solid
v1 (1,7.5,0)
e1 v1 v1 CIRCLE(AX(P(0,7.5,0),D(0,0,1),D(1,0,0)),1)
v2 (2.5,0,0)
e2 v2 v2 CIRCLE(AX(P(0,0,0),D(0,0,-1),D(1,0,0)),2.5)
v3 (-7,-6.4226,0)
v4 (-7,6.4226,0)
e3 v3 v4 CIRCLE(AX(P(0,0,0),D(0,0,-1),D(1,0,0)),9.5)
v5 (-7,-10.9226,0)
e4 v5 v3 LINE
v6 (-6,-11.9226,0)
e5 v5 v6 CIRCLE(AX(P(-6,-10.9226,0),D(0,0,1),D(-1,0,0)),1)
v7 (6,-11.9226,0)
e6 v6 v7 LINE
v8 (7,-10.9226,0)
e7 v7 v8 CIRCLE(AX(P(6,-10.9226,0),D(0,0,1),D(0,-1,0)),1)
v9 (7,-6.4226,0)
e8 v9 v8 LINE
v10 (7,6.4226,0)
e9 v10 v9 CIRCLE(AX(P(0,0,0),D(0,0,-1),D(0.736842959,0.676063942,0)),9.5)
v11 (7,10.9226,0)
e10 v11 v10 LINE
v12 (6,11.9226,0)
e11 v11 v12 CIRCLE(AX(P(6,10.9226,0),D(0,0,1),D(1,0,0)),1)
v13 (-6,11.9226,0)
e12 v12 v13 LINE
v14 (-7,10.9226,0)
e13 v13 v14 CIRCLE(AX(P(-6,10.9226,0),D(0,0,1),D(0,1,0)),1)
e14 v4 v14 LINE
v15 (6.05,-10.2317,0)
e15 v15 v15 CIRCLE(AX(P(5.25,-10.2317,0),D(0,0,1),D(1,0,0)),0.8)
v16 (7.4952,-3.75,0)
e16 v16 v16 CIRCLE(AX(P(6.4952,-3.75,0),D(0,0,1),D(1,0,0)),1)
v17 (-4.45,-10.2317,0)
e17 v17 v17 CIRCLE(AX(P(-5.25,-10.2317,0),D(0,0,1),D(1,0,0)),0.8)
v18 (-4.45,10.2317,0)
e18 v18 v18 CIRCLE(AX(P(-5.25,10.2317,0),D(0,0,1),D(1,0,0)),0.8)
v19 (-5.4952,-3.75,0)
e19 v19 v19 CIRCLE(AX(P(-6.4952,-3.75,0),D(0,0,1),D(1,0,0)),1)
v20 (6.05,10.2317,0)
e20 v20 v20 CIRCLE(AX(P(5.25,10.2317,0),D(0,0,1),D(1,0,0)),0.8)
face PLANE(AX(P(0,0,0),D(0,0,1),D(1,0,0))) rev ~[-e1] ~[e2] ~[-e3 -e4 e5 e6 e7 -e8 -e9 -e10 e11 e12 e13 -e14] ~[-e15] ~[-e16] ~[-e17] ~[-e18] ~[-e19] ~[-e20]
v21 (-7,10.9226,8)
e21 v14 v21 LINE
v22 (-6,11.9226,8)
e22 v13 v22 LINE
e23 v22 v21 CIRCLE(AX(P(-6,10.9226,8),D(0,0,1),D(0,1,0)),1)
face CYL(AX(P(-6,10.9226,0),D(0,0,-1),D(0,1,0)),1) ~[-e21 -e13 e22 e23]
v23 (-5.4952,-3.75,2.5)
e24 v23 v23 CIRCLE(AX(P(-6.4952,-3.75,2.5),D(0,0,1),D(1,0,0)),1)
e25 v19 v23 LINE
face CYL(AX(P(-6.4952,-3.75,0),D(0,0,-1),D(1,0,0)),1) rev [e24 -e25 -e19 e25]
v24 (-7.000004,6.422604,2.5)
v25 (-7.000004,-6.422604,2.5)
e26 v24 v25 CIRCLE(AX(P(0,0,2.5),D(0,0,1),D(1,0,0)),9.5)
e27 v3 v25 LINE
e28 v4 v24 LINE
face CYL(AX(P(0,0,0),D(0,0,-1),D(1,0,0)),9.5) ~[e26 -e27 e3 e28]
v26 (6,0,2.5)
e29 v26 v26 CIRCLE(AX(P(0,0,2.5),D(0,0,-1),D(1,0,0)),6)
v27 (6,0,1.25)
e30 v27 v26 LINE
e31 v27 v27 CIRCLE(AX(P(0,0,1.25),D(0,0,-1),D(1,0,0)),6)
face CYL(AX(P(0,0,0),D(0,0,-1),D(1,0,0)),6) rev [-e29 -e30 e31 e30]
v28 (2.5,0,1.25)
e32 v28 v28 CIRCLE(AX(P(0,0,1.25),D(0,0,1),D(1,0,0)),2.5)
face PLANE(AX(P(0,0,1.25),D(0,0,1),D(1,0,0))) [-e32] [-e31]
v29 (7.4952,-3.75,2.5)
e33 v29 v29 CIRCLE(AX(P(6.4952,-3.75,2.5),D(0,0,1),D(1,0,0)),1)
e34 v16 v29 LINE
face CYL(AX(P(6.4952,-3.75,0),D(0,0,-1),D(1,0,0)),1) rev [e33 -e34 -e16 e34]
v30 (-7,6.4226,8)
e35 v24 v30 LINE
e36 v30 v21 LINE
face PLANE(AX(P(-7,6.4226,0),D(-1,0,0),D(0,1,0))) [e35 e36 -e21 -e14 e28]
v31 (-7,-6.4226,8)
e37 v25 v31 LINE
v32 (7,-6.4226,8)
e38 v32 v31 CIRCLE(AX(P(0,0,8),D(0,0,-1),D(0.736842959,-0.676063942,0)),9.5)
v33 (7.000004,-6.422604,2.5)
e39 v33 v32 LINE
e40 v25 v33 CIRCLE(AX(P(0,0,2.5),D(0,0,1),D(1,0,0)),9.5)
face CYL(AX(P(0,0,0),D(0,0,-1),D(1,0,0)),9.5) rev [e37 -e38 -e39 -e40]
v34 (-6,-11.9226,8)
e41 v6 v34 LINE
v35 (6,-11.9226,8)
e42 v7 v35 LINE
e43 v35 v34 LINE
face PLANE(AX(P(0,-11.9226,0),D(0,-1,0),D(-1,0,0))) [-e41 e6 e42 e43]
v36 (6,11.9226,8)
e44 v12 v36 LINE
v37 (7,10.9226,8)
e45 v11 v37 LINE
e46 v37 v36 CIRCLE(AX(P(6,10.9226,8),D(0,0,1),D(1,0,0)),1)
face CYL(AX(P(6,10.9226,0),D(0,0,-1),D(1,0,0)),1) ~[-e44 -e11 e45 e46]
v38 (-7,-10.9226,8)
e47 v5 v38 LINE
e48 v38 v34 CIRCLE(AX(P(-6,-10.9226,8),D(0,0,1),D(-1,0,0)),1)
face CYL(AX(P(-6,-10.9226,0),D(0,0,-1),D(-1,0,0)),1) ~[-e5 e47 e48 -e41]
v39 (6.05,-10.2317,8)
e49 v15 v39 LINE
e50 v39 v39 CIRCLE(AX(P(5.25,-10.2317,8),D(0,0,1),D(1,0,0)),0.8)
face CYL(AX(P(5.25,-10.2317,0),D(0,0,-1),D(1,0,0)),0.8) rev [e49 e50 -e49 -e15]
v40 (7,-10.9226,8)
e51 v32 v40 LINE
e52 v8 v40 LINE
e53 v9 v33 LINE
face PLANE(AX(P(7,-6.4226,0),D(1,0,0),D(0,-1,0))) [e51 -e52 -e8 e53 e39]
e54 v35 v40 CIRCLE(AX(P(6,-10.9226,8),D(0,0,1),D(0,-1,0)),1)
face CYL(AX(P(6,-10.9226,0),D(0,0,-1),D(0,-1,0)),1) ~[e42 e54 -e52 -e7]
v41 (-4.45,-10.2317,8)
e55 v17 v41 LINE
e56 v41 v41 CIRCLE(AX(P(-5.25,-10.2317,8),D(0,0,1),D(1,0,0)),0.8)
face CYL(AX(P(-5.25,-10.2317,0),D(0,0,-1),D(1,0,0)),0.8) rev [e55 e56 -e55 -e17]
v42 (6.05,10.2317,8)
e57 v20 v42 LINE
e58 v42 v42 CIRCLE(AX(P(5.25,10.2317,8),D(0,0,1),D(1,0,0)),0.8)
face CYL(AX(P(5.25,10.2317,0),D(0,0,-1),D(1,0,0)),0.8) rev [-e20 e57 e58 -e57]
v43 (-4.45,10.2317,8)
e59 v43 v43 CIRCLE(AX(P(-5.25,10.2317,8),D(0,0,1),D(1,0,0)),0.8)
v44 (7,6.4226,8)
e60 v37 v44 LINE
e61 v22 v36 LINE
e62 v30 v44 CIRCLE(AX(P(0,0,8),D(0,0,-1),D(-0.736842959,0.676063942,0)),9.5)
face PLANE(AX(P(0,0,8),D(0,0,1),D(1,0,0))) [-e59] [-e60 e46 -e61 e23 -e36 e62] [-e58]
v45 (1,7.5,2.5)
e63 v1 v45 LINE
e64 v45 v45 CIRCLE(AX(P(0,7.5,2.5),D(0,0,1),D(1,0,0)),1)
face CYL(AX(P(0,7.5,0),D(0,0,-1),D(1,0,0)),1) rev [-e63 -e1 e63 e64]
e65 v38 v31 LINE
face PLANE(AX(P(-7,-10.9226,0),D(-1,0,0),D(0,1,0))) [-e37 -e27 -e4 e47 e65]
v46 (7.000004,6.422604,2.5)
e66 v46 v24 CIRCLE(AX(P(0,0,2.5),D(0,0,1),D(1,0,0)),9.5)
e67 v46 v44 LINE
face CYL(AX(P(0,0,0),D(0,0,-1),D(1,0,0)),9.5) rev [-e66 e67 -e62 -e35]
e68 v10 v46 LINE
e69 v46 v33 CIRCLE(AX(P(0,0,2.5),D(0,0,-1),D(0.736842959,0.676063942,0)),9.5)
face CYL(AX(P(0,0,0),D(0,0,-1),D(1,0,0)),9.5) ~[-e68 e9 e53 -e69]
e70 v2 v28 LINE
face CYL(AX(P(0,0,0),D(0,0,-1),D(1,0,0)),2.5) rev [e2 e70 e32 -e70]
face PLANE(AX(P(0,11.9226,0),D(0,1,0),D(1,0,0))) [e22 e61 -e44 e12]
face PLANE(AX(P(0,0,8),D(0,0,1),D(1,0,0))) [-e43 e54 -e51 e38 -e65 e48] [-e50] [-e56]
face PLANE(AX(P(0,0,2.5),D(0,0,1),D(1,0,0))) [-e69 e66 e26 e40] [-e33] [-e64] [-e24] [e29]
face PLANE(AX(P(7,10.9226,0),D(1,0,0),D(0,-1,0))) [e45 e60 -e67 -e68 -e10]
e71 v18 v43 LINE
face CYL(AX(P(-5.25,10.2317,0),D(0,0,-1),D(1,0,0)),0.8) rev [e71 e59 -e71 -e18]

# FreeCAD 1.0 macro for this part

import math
import FreeCAD as App
import Part
import Sketcher

V = App.Vector

doc = App.newDocument("Part")
params = doc.addObject("Spreadsheet::Sheet", "Params")
for row, (alias, value) in enumerate([
    ("sketch1_diameter", "19 mm"),
    ("sketch1_diameter2", "5 mm"),
    ("sketch1_diameter3", "2 mm"),
    ("pad1_length", "1.25 mm"),
    ("sketch2_diameter", "19 mm"),
    ("sketch2_diameter2", "2 mm"),
    ("sketch2_diameter3", "12 mm"),
    ("pad2_length", "2.5 mm"),
    ("sketch3_radius", "1 mm"),
    ("sketch3_diameter", "1.6 mm"),
    ("sketch3_radius2", "9.5 mm"),
    ("sketch3_width", "12 mm"),
    ("sketch3_height", "4.5 mm"),
    ("pad3_length", "8 mm"),
], start=1):
    params.set(f"A{row}", alias)
    params.set(f"B{row}", "=" + value)
    params.setAlias(f"B{row}", alias)

body = doc.addObject("PartDesign::Body", "Body")

sketch1 = doc.addObject("Sketcher::SketchObject", "Sketch")
body.addObject(sketch1)
sketch1.AttachmentSupport = (doc.XY_Plane, [""])
sketch1.MapMode = "FlatFace"
sketch1.addGeometry([
    Part.Circle(V(0, 0, 0), V(0, 0, 1), 9.5),
    Part.Circle(V(0, 0, 0), V(0, 0, 1), 2.5),
    Part.Circle(V(0, 7.5, 0), V(0, 0, 1), 1),
    Part.Circle(V(6.4952, -3.75, 0), V(0, 0, 1), 1),
    Part.Circle(V(-6.4952, -3.75, 0), V(0, 0, 1), 1),
], False)
sketch1.addConstraint([
    Sketcher.Constraint("Coincident", 0, 3, -1, 1),
    Sketcher.Constraint("Coincident", 1, 3, -1, 1),
    Sketcher.Constraint("Equal", 2, 3),
    Sketcher.Constraint("Equal", 3, 4),
    Sketcher.Constraint("Symmetric", 3, 3, 4, 3, -2),
    Sketcher.Constraint("PointOnObject", 2, 3, -2),
    Sketcher.Constraint("Diameter", 0, 19.0),
    Sketcher.Constraint("Diameter", 1, 5.0),
    Sketcher.Constraint("Diameter", 2, 2.0),
    Sketcher.Constraint("DistanceY", -1, 1, 2, 3, 7.5),
    Sketcher.Constraint("DistanceY", 3, 3, -1, 1, 3.75),
    Sketcher.Constraint("DistanceX", -1, 1, 3, 3, 6.4952),
])
sketch1.setExpression("Constraints[6]", "Params.sketch1_diameter")
sketch1.setExpression("Constraints[7]", "Params.sketch1_diameter2")
sketch1.setExpression("Constraints[8]", "Params.sketch1_diameter3")
pad1 = doc.addObject("PartDesign::Pad", "Pad")
body.addObject(pad1)
pad1.Profile = sketch1
pad1.setExpression("Length", "Params.pad1_length")

sketch2 = doc.addObject("Sketcher::SketchObject", "Sketch001")
body.addObject(sketch2)
sketch2.AttachmentSupport = (doc.XY_Plane, [""])
sketch2.MapMode = "FlatFace"
sketch2.addGeometry([
    Part.Circle(V(0, 0, 0), V(0, 0, 1), 9.5),
    Part.Circle(V(0, 7.5, 0), V(0, 0, 1), 1),
    Part.Circle(V(0, 0, 0), V(0, 0, 1), 6),
    Part.Circle(V(6.4952, -3.75, 0), V(0, 0, 1), 1),
    Part.Circle(V(-6.4952, -3.75, 0), V(0, 0, 1), 1),
], False)
sketch2.addConstraint([
    Sketcher.Constraint("Coincident", 0, 3, -1, 1),
    Sketcher.Constraint("Coincident", 2, 3, -1, 1),
    Sketcher.Constraint("Equal", 1, 3),
    Sketcher.Constraint("Equal", 3, 4),
    Sketcher.Constraint("Symmetric", 3, 3, 4, 3, -2),
    Sketcher.Constraint("PointOnObject", 1, 3, -2),
    Sketcher.Constraint("Diameter", 0, 19.0),
    Sketcher.Constraint("Diameter", 1, 2.0),
    Sketcher.Constraint("Diameter", 2, 12.0),
    Sketcher.Constraint("DistanceY", -1, 1, 1, 3, 7.5),
    Sketcher.Constraint("DistanceY", 3, 3, -1, 1, 3.75),
    Sketcher.Constraint("DistanceX", -1, 1, 3, 3, 6.4952),
])
sketch2.setExpression("Constraints[6]", "Params.sketch2_diameter")
sketch2.setExpression("Constraints[7]", "Params.sketch2_diameter2")
sketch2.setExpression("Constraints[8]", "Params.sketch2_diameter3")
pad2 = doc.addObject("PartDesign::Pad", "Pad001")
body.addObject(pad2)
pad2.Profile = sketch2
pad2.setExpression("Length", "Params.pad2_length")

sketch3 = doc.addObject("Sketcher::SketchObject", "Sketch002")
body.addObject(sketch3)
sketch3.AttachmentSupport = (doc.XY_Plane, [""])
sketch3.MapMode = "FlatFace"
sketch3.addGeometry([
    Part.LineSegment(V(-6, -11.9226, 0), V(6, -11.9226, 0)),
    Part.ArcOfCircle(Part.Circle(V(6, -10.9226, 0), V(0, 0, 1), 1), math.radians(-90), math.radians(0)),
    Part.LineSegment(V(7, -10.9226, 0), V(7, -6.4226, 0)),
    Part.ArcOfCircle(Part.Circle(V(0, 0, 0), V(0, 0, 1), 9.5), math.radians(-137.463174), math.radians(-42.536826)),
    Part.LineSegment(V(-7, -6.4226, 0), V(-7, -10.9226, 0)),
    Part.ArcOfCircle(Part.Circle(V(-6, -10.9226, 0), V(0, 0, 1), 1), math.radians(180), math.radians(270)),
    Part.Circle(V(-5.25, -10.2317, 0), V(0, 0, 1), 0.8),
    Part.Circle(V(5.25, -10.2317, 0), V(0, 0, 1), 0.8),
    Part.LineSegment(V(6, 11.9226, 0), V(-6, 11.9226, 0)),
    Part.ArcOfCircle(Part.Circle(V(-6, 10.9226, 0), V(0, 0, 1), 1), math.radians(90), math.radians(180)),
    Part.LineSegment(V(-7, 10.9226, 0), V(-7, 6.4226, 0)),
    Part.ArcOfCircle(Part.Circle(V(0, 0, 0), V(0, 0, 1), 9.5), math.radians(42.536826), math.radians(137.463174)),
    Part.LineSegment(V(7, 6.4226, 0), V(7, 10.9226, 0)),
    Part.ArcOfCircle(Part.Circle(V(6, 10.9226, 0), V(0, 0, 1), 1), math.radians(0), math.radians(90)),
    Part.Circle(V(5.25, 10.2317, 0), V(0, 0, 1), 0.8),
    Part.Circle(V(-5.25, 10.2317, 0), V(0, 0, 1), 0.8),
], False)
sketch3.addConstraint([
    Sketcher.Constraint("Tangent", 0, 2, 1, 1),
    Sketcher.Constraint("Tangent", 1, 2, 2, 1),
    Sketcher.Constraint("Coincident", 2, 2, 3, 2),
    Sketcher.Constraint("Coincident", 3, 1, 4, 1),
    Sketcher.Constraint("Tangent", 4, 2, 5, 1),
    Sketcher.Constraint("Tangent", 5, 2, 0, 1),
    Sketcher.Constraint("Tangent", 8, 2, 9, 1),
    Sketcher.Constraint("Tangent", 9, 2, 10, 1),
    Sketcher.Constraint("Coincident", 10, 2, 11, 2),
    Sketcher.Constraint("Coincident", 11, 1, 12, 1),
    Sketcher.Constraint("Tangent", 12, 2, 13, 1),
    Sketcher.Constraint("Tangent", 13, 2, 8, 1),
    Sketcher.Constraint("Horizontal", 0),
    Sketcher.Constraint("Vertical", 2),
    Sketcher.Constraint("Vertical", 4),
    Sketcher.Constraint("Horizontal", 8),
    Sketcher.Constraint("Vertical", 10),
    Sketcher.Constraint("Vertical", 12),
    Sketcher.Constraint("Coincident", 3, 3, -1, 1),
    Sketcher.Constraint("Coincident", 11, 3, -1, 1),
    Sketcher.Constraint("Equal", 1, 5),
    Sketcher.Constraint("Equal", 6, 7),
    Sketcher.Constraint("Equal", 5, 9),
    Sketcher.Constraint("Equal", 3, 11),
    Sketcher.Constraint("Equal", 9, 13),
    Sketcher.Constraint("Equal", 7, 14),
    Sketcher.Constraint("Equal", 14, 15),
    Sketcher.Constraint("Symmetric", 1, 3, 9, 3, -1, 1),
    Sketcher.Constraint("Symmetric", 6, 3, 14, 3, -1, 1),
    Sketcher.Constraint("Symmetric", 7, 3, 15, 3, -1, 1),
    Sketcher.Constraint("Symmetric", 6, 3, 7, 3, -2),
    Sketcher.Constraint("Horizontal", 2, 2, 3, 1),
    Sketcher.Constraint("Horizontal", 10, 2, 11, 1),
    Sketcher.Constraint("Radius", 1, 1.0),
    Sketcher.Constraint("Diameter", 6, 1.6),
    Sketcher.Constraint("Radius", 3, 9.5),
    Sketcher.Constraint("DistanceX", 0, 1, 0, 2, 12.0),
    Sketcher.Constraint("DistanceY", 2, 1, 2, 2, 4.5),
    Sketcher.Constraint("DistanceX", 6, 3, 7, 3, 10.5),
    Sketcher.Constraint("DistanceY", 5, 3, 6, 3, 0.691),
])
sketch3.setExpression("Constraints[33]", "Params.sketch3_radius")
sketch3.setExpression("Constraints[34]", "Params.sketch3_diameter")
sketch3.setExpression("Constraints[35]", "Params.sketch3_radius2")
sketch3.setExpression("Constraints[36]", "Params.sketch3_width")
sketch3.setExpression("Constraints[37]", "Params.sketch3_height")
pad3 = doc.addObject("PartDesign::Pad", "Pad002")
body.addObject(pad3)
pad3.Profile = sketch3
pad3.setExpression("Length", "Params.pad3_length")

doc.recompute()
